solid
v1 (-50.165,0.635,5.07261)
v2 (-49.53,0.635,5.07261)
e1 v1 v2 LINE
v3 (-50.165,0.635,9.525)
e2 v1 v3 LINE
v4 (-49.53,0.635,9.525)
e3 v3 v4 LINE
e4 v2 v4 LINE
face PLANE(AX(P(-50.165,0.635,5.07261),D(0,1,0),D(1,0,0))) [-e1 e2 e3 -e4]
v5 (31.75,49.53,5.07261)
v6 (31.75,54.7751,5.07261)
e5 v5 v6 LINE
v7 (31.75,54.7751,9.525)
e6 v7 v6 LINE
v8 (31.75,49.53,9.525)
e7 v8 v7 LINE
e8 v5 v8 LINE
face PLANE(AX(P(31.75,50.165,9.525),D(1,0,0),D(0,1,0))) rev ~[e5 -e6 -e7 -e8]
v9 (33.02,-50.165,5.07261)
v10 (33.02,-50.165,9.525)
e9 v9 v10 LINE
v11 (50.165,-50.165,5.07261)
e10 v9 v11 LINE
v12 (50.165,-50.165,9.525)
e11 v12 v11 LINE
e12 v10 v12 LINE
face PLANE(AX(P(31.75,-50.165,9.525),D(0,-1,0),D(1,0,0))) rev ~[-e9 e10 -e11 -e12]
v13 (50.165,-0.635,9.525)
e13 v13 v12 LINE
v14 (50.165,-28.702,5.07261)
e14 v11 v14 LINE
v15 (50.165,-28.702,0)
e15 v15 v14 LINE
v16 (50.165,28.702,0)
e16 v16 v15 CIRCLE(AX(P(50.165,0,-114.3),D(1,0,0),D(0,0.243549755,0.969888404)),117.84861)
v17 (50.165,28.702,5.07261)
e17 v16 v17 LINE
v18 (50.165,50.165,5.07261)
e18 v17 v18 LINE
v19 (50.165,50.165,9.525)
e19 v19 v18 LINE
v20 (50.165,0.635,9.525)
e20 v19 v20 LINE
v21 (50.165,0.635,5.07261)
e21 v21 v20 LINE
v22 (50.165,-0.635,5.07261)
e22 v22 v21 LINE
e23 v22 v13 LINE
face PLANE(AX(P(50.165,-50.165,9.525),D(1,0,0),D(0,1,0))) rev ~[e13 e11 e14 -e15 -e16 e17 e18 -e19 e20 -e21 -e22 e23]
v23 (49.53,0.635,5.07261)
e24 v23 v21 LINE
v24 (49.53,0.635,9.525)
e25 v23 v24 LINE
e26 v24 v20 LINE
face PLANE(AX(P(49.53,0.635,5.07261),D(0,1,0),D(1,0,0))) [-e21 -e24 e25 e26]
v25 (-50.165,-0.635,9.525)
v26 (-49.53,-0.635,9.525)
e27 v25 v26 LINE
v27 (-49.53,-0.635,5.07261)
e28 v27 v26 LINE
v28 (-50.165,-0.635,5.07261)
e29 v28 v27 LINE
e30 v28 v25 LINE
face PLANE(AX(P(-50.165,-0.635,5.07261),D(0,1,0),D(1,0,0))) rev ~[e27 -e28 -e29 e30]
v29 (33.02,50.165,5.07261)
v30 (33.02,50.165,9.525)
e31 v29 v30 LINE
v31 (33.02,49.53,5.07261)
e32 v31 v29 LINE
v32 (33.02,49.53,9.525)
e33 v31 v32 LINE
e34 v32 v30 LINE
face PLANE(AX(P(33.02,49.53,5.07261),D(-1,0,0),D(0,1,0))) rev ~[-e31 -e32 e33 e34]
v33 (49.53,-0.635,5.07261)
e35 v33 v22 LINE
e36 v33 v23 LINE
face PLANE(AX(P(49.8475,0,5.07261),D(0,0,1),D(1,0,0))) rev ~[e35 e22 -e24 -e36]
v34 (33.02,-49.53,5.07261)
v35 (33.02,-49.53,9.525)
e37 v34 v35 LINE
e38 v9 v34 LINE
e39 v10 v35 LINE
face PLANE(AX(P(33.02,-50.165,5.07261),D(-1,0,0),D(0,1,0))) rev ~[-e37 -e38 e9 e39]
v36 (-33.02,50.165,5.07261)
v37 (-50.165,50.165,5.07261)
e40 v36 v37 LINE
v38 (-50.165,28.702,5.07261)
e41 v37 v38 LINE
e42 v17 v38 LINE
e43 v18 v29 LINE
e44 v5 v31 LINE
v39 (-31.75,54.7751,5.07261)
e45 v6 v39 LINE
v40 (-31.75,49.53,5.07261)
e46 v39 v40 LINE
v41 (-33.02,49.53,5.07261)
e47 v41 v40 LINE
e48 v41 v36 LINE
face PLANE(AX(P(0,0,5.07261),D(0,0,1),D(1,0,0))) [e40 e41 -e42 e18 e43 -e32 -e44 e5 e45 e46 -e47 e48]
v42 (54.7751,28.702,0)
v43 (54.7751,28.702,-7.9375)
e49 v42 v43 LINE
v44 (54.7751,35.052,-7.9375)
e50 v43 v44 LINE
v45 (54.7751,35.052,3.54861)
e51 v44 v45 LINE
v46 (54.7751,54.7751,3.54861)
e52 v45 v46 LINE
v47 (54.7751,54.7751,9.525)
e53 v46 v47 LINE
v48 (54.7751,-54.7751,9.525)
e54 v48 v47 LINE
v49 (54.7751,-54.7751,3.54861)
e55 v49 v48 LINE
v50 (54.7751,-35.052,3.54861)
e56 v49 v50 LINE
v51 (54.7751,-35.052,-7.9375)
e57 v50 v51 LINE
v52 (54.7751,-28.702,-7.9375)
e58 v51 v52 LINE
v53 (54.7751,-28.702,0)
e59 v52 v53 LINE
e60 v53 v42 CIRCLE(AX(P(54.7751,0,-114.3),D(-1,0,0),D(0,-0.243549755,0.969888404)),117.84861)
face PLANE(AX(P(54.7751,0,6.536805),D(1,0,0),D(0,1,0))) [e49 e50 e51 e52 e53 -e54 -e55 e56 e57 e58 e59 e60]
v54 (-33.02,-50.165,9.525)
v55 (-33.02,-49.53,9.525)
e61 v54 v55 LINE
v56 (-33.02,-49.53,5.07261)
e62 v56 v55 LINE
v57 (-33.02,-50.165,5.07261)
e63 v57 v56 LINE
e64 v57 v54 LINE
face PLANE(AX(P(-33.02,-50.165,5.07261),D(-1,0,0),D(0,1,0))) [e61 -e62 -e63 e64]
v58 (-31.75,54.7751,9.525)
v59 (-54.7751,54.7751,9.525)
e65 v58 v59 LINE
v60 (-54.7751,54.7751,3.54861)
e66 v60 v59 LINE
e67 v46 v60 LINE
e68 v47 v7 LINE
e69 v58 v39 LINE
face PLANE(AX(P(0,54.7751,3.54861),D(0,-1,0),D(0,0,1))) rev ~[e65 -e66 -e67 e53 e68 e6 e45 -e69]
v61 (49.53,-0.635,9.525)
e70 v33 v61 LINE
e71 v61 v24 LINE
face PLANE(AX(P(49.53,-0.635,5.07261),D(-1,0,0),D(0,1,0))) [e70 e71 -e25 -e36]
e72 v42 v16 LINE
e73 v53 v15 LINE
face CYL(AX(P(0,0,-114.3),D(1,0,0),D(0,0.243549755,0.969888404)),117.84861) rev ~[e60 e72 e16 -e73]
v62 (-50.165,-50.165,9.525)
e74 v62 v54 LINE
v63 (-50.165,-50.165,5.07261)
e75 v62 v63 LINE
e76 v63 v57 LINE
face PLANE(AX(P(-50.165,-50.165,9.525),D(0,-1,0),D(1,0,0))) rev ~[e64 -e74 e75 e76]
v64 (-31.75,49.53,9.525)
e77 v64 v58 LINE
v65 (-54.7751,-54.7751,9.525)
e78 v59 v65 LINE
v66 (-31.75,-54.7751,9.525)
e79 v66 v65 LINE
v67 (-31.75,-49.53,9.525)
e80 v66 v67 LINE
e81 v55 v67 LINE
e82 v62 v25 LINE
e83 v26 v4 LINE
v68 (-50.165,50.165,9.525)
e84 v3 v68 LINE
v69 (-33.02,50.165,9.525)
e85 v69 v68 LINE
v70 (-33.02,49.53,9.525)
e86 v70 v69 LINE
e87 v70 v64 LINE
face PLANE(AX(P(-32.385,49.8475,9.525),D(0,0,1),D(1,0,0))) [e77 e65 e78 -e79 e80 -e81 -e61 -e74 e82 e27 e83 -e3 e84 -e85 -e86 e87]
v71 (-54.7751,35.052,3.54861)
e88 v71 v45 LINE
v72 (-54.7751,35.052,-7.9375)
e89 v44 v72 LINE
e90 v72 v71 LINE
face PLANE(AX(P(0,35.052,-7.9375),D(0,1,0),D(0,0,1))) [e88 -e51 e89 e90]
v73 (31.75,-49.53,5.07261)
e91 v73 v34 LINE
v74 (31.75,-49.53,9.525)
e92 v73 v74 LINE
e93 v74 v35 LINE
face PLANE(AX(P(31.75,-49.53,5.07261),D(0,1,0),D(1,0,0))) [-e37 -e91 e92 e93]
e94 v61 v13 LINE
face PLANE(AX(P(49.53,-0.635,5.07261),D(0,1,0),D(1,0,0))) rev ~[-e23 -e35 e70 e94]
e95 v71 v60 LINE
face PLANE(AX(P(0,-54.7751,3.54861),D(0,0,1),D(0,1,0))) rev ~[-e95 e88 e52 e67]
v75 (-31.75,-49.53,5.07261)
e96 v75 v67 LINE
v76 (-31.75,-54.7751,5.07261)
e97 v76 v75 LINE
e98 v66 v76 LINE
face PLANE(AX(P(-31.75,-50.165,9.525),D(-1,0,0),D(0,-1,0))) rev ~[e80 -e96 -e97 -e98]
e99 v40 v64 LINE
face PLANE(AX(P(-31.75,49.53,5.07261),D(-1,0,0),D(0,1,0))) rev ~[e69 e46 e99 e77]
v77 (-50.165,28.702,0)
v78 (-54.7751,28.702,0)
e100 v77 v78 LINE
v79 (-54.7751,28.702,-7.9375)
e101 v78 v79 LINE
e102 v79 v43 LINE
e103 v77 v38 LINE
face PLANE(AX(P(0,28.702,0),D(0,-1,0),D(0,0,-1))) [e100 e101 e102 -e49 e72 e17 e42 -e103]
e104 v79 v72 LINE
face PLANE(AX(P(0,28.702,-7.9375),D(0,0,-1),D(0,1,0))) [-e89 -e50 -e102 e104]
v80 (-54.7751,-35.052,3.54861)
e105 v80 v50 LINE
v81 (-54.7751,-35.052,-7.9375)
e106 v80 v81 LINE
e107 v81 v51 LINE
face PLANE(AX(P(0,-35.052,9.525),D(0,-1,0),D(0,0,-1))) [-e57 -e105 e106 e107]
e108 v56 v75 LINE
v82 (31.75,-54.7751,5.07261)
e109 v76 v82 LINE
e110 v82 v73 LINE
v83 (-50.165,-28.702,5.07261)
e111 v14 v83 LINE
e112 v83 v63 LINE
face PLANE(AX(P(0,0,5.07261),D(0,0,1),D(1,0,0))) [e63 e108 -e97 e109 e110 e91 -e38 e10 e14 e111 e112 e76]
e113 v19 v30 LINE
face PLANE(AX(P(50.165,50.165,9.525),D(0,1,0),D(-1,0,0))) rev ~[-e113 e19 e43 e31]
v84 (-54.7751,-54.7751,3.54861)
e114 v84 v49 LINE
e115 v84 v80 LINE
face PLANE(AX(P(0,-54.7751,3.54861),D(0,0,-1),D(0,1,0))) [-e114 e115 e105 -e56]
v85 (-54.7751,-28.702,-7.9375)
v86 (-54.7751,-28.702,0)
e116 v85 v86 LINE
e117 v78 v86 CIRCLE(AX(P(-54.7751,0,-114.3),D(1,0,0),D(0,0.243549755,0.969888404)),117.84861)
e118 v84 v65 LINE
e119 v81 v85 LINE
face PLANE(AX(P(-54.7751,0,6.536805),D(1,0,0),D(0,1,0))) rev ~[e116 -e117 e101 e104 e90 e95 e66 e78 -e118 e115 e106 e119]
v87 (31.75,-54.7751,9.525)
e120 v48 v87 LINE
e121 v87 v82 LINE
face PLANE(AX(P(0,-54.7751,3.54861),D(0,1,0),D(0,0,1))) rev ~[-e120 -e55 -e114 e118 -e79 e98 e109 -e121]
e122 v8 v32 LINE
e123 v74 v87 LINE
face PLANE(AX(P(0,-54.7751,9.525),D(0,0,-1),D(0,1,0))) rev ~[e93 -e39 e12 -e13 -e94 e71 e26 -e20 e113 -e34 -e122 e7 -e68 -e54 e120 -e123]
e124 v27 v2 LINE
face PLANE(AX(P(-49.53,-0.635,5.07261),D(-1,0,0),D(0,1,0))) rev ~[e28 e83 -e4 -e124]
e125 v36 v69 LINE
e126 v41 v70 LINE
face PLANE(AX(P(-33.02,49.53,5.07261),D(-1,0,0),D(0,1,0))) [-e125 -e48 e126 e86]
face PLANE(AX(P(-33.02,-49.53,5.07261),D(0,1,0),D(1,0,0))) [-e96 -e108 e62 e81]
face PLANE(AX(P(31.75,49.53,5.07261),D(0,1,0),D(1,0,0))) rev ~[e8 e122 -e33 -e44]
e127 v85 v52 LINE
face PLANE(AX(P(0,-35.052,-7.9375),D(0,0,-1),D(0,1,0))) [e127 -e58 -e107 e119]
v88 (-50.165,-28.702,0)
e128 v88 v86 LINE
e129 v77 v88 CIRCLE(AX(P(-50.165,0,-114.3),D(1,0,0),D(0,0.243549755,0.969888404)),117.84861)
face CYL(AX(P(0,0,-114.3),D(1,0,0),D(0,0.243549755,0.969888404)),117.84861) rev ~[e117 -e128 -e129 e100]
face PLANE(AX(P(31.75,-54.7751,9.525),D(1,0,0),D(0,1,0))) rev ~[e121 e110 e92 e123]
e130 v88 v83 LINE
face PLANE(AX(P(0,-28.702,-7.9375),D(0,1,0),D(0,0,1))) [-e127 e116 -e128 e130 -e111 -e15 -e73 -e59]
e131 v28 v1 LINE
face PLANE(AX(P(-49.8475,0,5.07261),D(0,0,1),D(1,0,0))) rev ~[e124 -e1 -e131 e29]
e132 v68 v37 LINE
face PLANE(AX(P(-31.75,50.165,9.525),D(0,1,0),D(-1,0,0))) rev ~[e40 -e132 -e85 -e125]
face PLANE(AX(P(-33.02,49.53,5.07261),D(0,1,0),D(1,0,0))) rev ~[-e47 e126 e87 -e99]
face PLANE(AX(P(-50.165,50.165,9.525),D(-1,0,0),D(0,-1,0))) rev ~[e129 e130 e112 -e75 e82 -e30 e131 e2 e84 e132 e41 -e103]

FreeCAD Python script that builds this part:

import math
import FreeCAD as App
import Part
import Sketcher

V = App.Vector
Q = App.Units.Quantity


def add_polygon(sketch, points):
    """Adds a closed chain of lines whose ends are joined by coincident constraints."""
    first, n = sketch.GeometryCount, len(points)
    for a, b in zip(points, points[1:] + points[:1]):
        sketch.addGeometry(Part.LineSegment(App.Vector(*a, 0), App.Vector(*b, 0)), False)
    for i in range(n):
        sketch.addConstraint(Sketcher.Constraint("Coincident", first + i, 2, first + (i + 1) % n, 1))

doc = App.newDocument("Part")
body = doc.addObject("PartDesign::Body", "Body")

# Sketch on YZ plane
sketch1 = doc.addObject("Sketcher::SketchObject", "Sketch")
body.addObject(sketch1)
sketch1.AttachmentSupport = (doc.YZ_Plane, [""])
sketch1.MapMode = "FlatFace"
add_polygon(sketch1, [(35, 10), (-35, 10), (-35, -8), (-29, -8), (-29, 0), (29, 0), (29, -8), (35, -8)])  # lines 0-7
sketch1.addConstraint([
    Sketcher.Constraint("Horizontal", 0),
    Sketcher.Constraint("Vertical", 1),
    Sketcher.Constraint("Horizontal", 2),
    Sketcher.Constraint("Vertical", 3),
    Sketcher.Constraint("Horizontal", 4),
    Sketcher.Constraint("Vertical", 5),
    Sketcher.Constraint("Horizontal", 6),
    Sketcher.Constraint("Vertical", 7),
    Sketcher.Constraint("Symmetric", 3, 2, 4, 2, -1, 1),
    Sketcher.Constraint("Symmetric", 1, 2, 6, 2, -2),
    Sketcher.Constraint("DistanceX", 0, 2, 0, 1, Q("2.76 in")),
    Sketcher.Constraint("DistanceX", 2, 1, 2, 2, Q("0.25 in")),
    Sketcher.Constraint("DistanceY", 1, 2, 1, 1, Q("0.6875 in")),
    Sketcher.Constraint("DistanceY", 3, 1, 3, 2, Q("0.3125 in")),
])
pad1 = doc.addObject("PartDesign::Pad", "Pad")
body.addObject(pad1)
pad1.Profile = sketch1
pad1.Type = "TwoLengths"
pad1.Length = Q("2.1565 in")
pad1.Length2 = Q("2.1565 in")

# Sketch on YZ plane
sketch2 = doc.addObject("Sketcher::SketchObject", "Sketch001")
body.addObject(sketch2)
sketch2.AttachmentSupport = (doc.YZ_Plane, [""])
sketch2.MapMode = "FlatFace"
sketch2.addGeometry([
    Part.ArcOfCircle(Part.Circle(V(0, -114, 0), V(0, 0, 1), 118), math.radians(76), math.radians(104)),
    Part.LineSegment(V(-29, 0, 0), V(29, 0, 0)),
], False)
sketch2.addConstraint([
    Sketcher.Constraint("Coincident", 0, 1, 1, 2),
    Sketcher.Constraint("Coincident", 1, 1, 0, 2),
    Sketcher.Constraint("Horizontal", 1),
    Sketcher.Constraint("Symmetric", 0, 1, 1, 1, -1, 1),
    Sketcher.Constraint("DistanceX", 1, 1, 1, 2, Q("2.26 in")),
    Sketcher.Constraint("DistanceY", 0, 3, -1, 1, Q("4.5 in")),
])
pocket1 = doc.addObject("PartDesign::Pocket", "Pocket")
body.addObject(pocket1)
pocket1.Profile = sketch2
pocket1.Type = "ThroughAll"
pocket1.Midplane = True

# Sketch on YZ plane
sketch3 = doc.addObject("Sketcher::SketchObject", "Sketch002")
body.addObject(sketch3)
sketch3.AttachmentSupport = (doc.YZ_Plane, [""])
sketch3.MapMode = "FlatFace"
add_polygon(sketch3, [(-55, 10), (-55, 4), (55, 4), (55, 10)])  # lines 0-3
sketch3.addConstraint([
    Sketcher.Constraint("Vertical", 0),
    Sketcher.Constraint("Horizontal", 1),
    Sketcher.Constraint("Vertical", 2),
    Sketcher.Constraint("Horizontal", 3),
    Sketcher.Constraint("DistanceX", 1, 1, 1, 2, Q("4.313 in")),
    Sketcher.Constraint("DistanceY", -1, 1, 2, 2, Q("0.375 in")),
    Sketcher.Constraint("DistanceX", 0, 2, -1, 1, Q("2.1565 in")),
    Sketcher.Constraint("DistanceY", 0, 2, 0, 1, Q("5.97639 mm")),
])
pad2 = doc.addObject("PartDesign::Pad", "Pad001")
body.addObject(pad2)
pad2.Profile = sketch3
pad2.Type = "TwoLengths"
pad2.Length = Q("2.1565 in")
pad2.Length2 = Q("2.1565 in")

# Sketch on XY plane
sketch4 = doc.addObject("Sketcher::SketchObject", "Sketch003")
body.addObject(sketch4)
sketch4.AttachmentSupport = (doc.XY_Plane, [""])
sketch4.MapMode = "FlatFace"
sketch4.AttachmentOffset = App.Placement(V(0, 0, 0.375 * 25.4), App.Rotation())
add_polygon(sketch4, [(50.2, -50.2), (50.2, 50.2), (31.8, 50.2), (31.8, 54.8), (-31.8, 54.8), (-31.8, 50.2), (-50.2, 50.2), (-50.2, -50.2), (-31.8, -50.2), (-31.8, -54.8), (31.8, -54.8), (31.8, -50.2)])  # lines 0-11
sketch4.addConstraint([
    Sketcher.Constraint("Vertical", 0),
    Sketcher.Constraint("Horizontal", 1),
    Sketcher.Constraint("Vertical", 2),
    Sketcher.Constraint("Horizontal", 3),
    Sketcher.Constraint("Vertical", 4),
    Sketcher.Constraint("Horizontal", 5),
    Sketcher.Constraint("Vertical", 6),
    Sketcher.Constraint("Horizontal", 7),
    Sketcher.Constraint("Vertical", 8),
    Sketcher.Constraint("Horizontal", 9),
    Sketcher.Constraint("Vertical", 10),
    Sketcher.Constraint("Horizontal", 11),
    Sketcher.Constraint("Symmetric", 0, 2, 6, 2, -1, 1),
    Sketcher.Constraint("Symmetric", 2, 2, 8, 2, -1, 1),
    Sketcher.Constraint("Symmetric", 4, 2, 10, 2, -1, 1),
    Sketcher.Constraint("Symmetric", 1, 2, 4, 2, -2),
    Sketcher.Constraint("DistanceX", 3, 2, 3, 1, Q("2.5 in")),
    Sketcher.Constraint("DistanceY", 0, 1, 0, 2, Q("3.95 in")),
    Sketcher.Constraint("DistanceX", 1, 2, 1, 1, Q("0.725 in")),
    Sketcher.Constraint("DistanceY", 2, 1, 2, 2, Q("0.1815 in")),
])
pocket2 = doc.addObject("PartDesign::Pocket", "Pocket001")
body.addObject(pocket2)
pocket2.Profile = sketch4
pocket2.Length = 4.45239

# Sketch on YZ plane
sketch5 = doc.addObject("Sketcher::SketchObject", "Sketch004")
body.addObject(sketch5)
sketch5.AttachmentSupport = (doc.YZ_Plane, [""])
sketch5.MapMode = "FlatFace"
add_polygon(sketch5, [(-29, 10), (-29, -8), (29, -8), (29, 10)])  # lines 0-3
sketch5.addConstraint([
    Sketcher.Constraint("Vertical", 0),
    Sketcher.Constraint("Horizontal", 1),
    Sketcher.Constraint("Vertical", 2),
    Sketcher.Constraint("Horizontal", 3),
    Sketcher.Constraint("DistanceX", 1, 1, 1, 2, Q("2.26 in")),
    Sketcher.Constraint("DistanceY", 0, 2, 0, 1, Q("0.6875 in")),
    Sketcher.Constraint("DistanceX", 0, 2, -1, 1, Q("1.13 in")),
    Sketcher.Constraint("DistanceY", 0, 2, -1, 1, Q("0.3125 in")),
])
pocket3 = doc.addObject("PartDesign::Pocket", "Pocket002")
body.addObject(pocket3)
pocket3.Profile = sketch5
pocket3.Type = "TwoLengths"
pocket3.Length = Q("1.975 in")
pocket3.Length2 = Q("1.975 in")
pocket3.Reversed = True

# Sketch on XY plane
sketch6 = doc.addObject("Sketcher::SketchObject", "Sketch005")
body.addObject(sketch6)
sketch6.AttachmentSupport = (doc.XY_Plane, [""])
sketch6.MapMode = "FlatFace"
sketch6.AttachmentOffset = App.Placement(V(0, 0, 5.07261), App.Rotation())
add_polygon(sketch6, [(-33, 50.2), (-33, 49.5), (-31.8, 49.5), (-31.8, 50.2)])  # lines 0-3
add_polygon(sketch6, [(31.8, 50.2), (31.8, 49.5), (33, 49.5), (33, 50.2)])  # lines 4-7
add_polygon(sketch6, [(-33, -49.5), (-33, -50.2), (-31.8, -50.2), (-31.8, -49.5)])  # lines 8-11
add_polygon(sketch6, [(31.8, -49.5), (31.8, -50.2), (33, -50.2), (33, -49.5)])  # lines 12-15
add_polygon(sketch6, [(-50.2, 0.6), (-50.2, -0.6), (-49.5, -0.6), (-49.5, 0.6)])  # lines 16-19
add_polygon(sketch6, [(49.5, 0.6), (49.5, -0.6), (50.2, -0.6), (50.2, 0.6)])  # lines 20-23
sketch6.addConstraint([
    Sketcher.Constraint("Vertical", 0),
    Sketcher.Constraint("Horizontal", 1),
    Sketcher.Constraint("Vertical", 2),
    Sketcher.Constraint("Horizontal", 3),
    Sketcher.Constraint("Vertical", 4),
    Sketcher.Constraint("Horizontal", 5),
    Sketcher.Constraint("Vertical", 6),
    Sketcher.Constraint("Horizontal", 7),
    Sketcher.Constraint("Vertical", 8),
    Sketcher.Constraint("Horizontal", 9),
    Sketcher.Constraint("Vertical", 10),
    Sketcher.Constraint("Horizontal", 11),
    Sketcher.Constraint("Vertical", 12),
    Sketcher.Constraint("Horizontal", 13),
    Sketcher.Constraint("Vertical", 14),
    Sketcher.Constraint("Horizontal", 15),
    Sketcher.Constraint("Vertical", 16),
    Sketcher.Constraint("Horizontal", 17),
    Sketcher.Constraint("Vertical", 18),
    Sketcher.Constraint("Horizontal", 19),
    Sketcher.Constraint("Vertical", 20),
    Sketcher.Constraint("Horizontal", 21),
    Sketcher.Constraint("Vertical", 22),
    Sketcher.Constraint("Horizontal", 23),
    Sketcher.Constraint("Symmetric", 6, 2, 8, 2, -1, 1),
    Sketcher.Constraint("Symmetric", 4, 2, 10, 2, -1, 1),
    Sketcher.Constraint("Symmetric", 2, 2, 12, 2, -1, 1),
    Sketcher.Constraint("Symmetric", 0, 2, 14, 2, -1, 1),
    Sketcher.Constraint("Symmetric", 18, 2, 20, 2, -1, 1),
    Sketcher.Constraint("Symmetric", 16, 2, 22, 2, -1, 1),
    Sketcher.Constraint("Symmetric", 1, 2, 4, 2, -2),
    Sketcher.Constraint("Symmetric", 3, 2, 6, 2, -2),
    Sketcher.Constraint("Horizontal", 17, 2, 20, 2),
    Sketcher.Constraint("Equal", 23, 0),
    Sketcher.Constraint("Equal", 15, 16),
    Sketcher.Constraint("DistanceX", 1, 1, 1, 2, Q("0.05 in")),
    Sketcher.Constraint("DistanceX", 0, 2, -1, 1, Q("1.3 in")),
    Sketcher.Constraint("DistanceY", 10, 2, 1, 2, Q("3.9 in")),
    Sketcher.Constraint("DistanceX", 17, 2, 10, 2, Q("0.7 in")),
    Sketcher.Constraint("DistanceX", 17, 1, 17, 2, Q("0.025 in")),
])
pad3 = doc.addObject("PartDesign::Pad", "Pad002")
body.addObject(pad3)
pad3.Profile = sketch6
pad3.Length = 4.45239

doc.recompute()
